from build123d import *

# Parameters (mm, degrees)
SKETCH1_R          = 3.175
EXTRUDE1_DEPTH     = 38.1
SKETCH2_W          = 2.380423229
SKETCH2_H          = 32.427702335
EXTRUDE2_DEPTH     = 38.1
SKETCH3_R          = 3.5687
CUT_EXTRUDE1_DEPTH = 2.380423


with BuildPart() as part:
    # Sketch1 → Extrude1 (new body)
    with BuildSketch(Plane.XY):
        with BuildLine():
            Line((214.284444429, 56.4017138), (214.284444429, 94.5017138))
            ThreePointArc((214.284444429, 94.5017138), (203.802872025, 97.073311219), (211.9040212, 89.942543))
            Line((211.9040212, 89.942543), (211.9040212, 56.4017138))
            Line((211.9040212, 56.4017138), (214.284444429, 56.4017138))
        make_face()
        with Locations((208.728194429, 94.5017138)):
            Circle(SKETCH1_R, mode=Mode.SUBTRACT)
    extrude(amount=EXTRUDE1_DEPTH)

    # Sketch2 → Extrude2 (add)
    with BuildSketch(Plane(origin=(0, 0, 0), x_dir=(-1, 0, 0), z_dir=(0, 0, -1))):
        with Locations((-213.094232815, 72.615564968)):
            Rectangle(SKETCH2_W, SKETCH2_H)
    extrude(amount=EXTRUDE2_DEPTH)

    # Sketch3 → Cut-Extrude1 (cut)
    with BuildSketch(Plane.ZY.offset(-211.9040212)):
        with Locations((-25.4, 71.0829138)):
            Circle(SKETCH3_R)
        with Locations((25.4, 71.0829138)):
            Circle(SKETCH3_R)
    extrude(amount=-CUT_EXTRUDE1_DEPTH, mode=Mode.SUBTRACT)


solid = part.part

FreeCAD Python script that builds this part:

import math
import FreeCAD as App
import Part
import Sketcher

V = App.Vector
Q = App.Units.Quantity

doc = App.newDocument("Part")
params = doc.addObject("Spreadsheet::Sheet", "Params")
for row, (alias, value) in enumerate([
    ("sketch1_diameter", "0.25 in"),
    ("sketch1_height", "1.5 in"),
    ("sketch1_radius", "0.21875 in"),
    ("pad1_length", "1.5 in"),
    ("pad2_length", "1.5 in"),
    ("sketch3_diameter", "0.281 in"),
    ("pocket1_length", "2.380423 mm"),
], start=1):
    params.set(f"A{row}", alias)
    params.set(f"B{row}", "=" + value)
    params.setAlias(f"B{row}", alias)

body = doc.addObject("PartDesign::Body", "Body")

# Sketch on XY plane
sketch1 = body.newObject("Sketcher::SketchObject", "Sketch")
sketch1.AttachmentSupport = (doc.getObject("XY_Plane"), [""])
sketch1.MapMode = "FlatFace"
sketch1.addGeometry([
    Part.LineSegment(V(214.3, 56.4, 0), V(214.3, 94.5, 0)),  # 0
    Part.ArcOfCircle(Part.Circle(V(208.7, 94.5, 0), V(0, 0, 1), 5.6), math.radians(0), math.radians(305)),  # 1
    Part.LineSegment(V(211.9, 89.9, 0), V(211.9, 56.4, 0)),  # 2
    Part.LineSegment(V(211.9, 56.4, 0), V(214.3, 56.4, 0)),  # 3
    Part.Circle(V(208.7, 94.5, 0), V(0, 0, 1), 3.2),  # 4
], False)
sketch1.addConstraint([
    Sketcher.Constraint("Tangent", 0, 2, 1, 1),
    Sketcher.Constraint("Coincident", 1, 2, 2, 1),
    Sketcher.Constraint("Coincident", 2, 2, 3, 1),
    Sketcher.Constraint("Coincident", 3, 2, 0, 1),
    Sketcher.Constraint("Vertical", 0),
    Sketcher.Constraint("Vertical", 2),
    Sketcher.Constraint("Horizontal", 3),
    Sketcher.Constraint("Coincident", 4, 3, 1, 3),
    Sketcher.Constraint("Diameter", 4, Q("0.25 in")),
    Sketcher.Constraint("DistanceY", 0, 1, 0, 2, Q("1.5 in")),
    Sketcher.Constraint("Radius", 1, Q("0.21875 in")),
    Sketcher.Constraint("DistanceY", 2, 2, 2, 1, 33.540829),
    Sketcher.Constraint("DistanceX", -1, 1, 1, 2, 211.904021),
    Sketcher.Constraint("DistanceY", -1, 1, 1, 3, 94.501714),
])
sketch1.setExpression("Constraints[8]", "Params.sketch1_diameter")
sketch1.setExpression("Constraints[9]", "Params.sketch1_height")
sketch1.setExpression("Constraints[10]", "Params.sketch1_radius")
pad1 = body.newObject("PartDesign::Pad", "Pad")
pad1.Profile = sketch1
pad1.setExpression("Length", "Params.pad1_length")

# Sketch on XY plane
sketch2 = body.newObject("Sketcher::SketchObject", "Sketch001")
sketch2.AttachmentSupport = (doc.getObject("XY_Plane"), [""])
sketch2.MapMode = "FlatFace"
sketch2.addGeometry([
    Part.LineSegment(V(214.3, 88.8, 0), V(214.3, 56.4, 0)),
    Part.LineSegment(V(214.3, 56.4, 0), V(211.9, 56.4, 0)),
    Part.LineSegment(V(211.9, 56.4, 0), V(211.9, 88.8, 0)),
    Part.LineSegment(V(211.9, 88.8, 0), V(214.3, 88.8, 0)),
], False)
sketch2.addConstraint([
    Sketcher.Constraint("Coincident", 0, 2, 1, 1),
    Sketcher.Constraint("Coincident", 1, 2, 2, 1),
    Sketcher.Constraint("Coincident", 2, 2, 3, 1),
    Sketcher.Constraint("Coincident", 3, 2, 0, 1),
    Sketcher.Constraint("Vertical", 0),
    Sketcher.Constraint("Horizontal", 1),
    Sketcher.Constraint("Vertical", 2),
    Sketcher.Constraint("Horizontal", 3),
    Sketcher.Constraint("DistanceX", 1, 2, 1, 1, 2.380423),
    Sketcher.Constraint("DistanceY", 0, 2, 0, 1, 32.427702),
    Sketcher.Constraint("DistanceX", -1, 1, 1, 2, 211.904021),
    Sketcher.Constraint("DistanceY", -1, 1, 0, 2, 56.401714),
])
pad2 = body.newObject("PartDesign::Pad", "Pad001")
pad2.Profile = sketch2
pad2.setExpression("Length", "Params.pad2_length")
pad2.Reversed = True

# Sketch on YZ plane
sketch3 = body.newObject("Sketcher::SketchObject", "Sketch002")
sketch3.AttachmentSupport = (doc.getObject("YZ_Plane"), [""])
sketch3.MapMode = "FlatFace"
sketch3.AttachmentOffset = App.Placement(V(0, 0, 211.904021), App.Rotation())
sketch3.addGeometry([
    Part.Circle(V(71.1, -25.4, 0), V(0, 0, 1), 3.6),
    Part.Circle(V(71.1, 25.4, 0), V(0, 0, 1), 3.6),
], False)
sketch3.addConstraint([
    Sketcher.Constraint("Equal", 0, 1),
    Sketcher.Constraint("Symmetric", 0, 3, 1, 3, -1),
    Sketcher.Constraint("Diameter", 0, Q("0.281 in")),
    Sketcher.Constraint("DistanceY", 0, 3, -1, 1, Q("1 in")),
    Sketcher.Constraint("DistanceX", -1, 1, 0, 3, 71.082914),
])
sketch3.setExpression("Constraints[2]", "Params.sketch3_diameter")
pocket1 = body.newObject("PartDesign::Pocket", "Pocket")
pocket1.Profile = sketch3
pocket1.setExpression("Length", "Params.pocket1_length")
pocket1.Reversed = True

doc.recompute()
